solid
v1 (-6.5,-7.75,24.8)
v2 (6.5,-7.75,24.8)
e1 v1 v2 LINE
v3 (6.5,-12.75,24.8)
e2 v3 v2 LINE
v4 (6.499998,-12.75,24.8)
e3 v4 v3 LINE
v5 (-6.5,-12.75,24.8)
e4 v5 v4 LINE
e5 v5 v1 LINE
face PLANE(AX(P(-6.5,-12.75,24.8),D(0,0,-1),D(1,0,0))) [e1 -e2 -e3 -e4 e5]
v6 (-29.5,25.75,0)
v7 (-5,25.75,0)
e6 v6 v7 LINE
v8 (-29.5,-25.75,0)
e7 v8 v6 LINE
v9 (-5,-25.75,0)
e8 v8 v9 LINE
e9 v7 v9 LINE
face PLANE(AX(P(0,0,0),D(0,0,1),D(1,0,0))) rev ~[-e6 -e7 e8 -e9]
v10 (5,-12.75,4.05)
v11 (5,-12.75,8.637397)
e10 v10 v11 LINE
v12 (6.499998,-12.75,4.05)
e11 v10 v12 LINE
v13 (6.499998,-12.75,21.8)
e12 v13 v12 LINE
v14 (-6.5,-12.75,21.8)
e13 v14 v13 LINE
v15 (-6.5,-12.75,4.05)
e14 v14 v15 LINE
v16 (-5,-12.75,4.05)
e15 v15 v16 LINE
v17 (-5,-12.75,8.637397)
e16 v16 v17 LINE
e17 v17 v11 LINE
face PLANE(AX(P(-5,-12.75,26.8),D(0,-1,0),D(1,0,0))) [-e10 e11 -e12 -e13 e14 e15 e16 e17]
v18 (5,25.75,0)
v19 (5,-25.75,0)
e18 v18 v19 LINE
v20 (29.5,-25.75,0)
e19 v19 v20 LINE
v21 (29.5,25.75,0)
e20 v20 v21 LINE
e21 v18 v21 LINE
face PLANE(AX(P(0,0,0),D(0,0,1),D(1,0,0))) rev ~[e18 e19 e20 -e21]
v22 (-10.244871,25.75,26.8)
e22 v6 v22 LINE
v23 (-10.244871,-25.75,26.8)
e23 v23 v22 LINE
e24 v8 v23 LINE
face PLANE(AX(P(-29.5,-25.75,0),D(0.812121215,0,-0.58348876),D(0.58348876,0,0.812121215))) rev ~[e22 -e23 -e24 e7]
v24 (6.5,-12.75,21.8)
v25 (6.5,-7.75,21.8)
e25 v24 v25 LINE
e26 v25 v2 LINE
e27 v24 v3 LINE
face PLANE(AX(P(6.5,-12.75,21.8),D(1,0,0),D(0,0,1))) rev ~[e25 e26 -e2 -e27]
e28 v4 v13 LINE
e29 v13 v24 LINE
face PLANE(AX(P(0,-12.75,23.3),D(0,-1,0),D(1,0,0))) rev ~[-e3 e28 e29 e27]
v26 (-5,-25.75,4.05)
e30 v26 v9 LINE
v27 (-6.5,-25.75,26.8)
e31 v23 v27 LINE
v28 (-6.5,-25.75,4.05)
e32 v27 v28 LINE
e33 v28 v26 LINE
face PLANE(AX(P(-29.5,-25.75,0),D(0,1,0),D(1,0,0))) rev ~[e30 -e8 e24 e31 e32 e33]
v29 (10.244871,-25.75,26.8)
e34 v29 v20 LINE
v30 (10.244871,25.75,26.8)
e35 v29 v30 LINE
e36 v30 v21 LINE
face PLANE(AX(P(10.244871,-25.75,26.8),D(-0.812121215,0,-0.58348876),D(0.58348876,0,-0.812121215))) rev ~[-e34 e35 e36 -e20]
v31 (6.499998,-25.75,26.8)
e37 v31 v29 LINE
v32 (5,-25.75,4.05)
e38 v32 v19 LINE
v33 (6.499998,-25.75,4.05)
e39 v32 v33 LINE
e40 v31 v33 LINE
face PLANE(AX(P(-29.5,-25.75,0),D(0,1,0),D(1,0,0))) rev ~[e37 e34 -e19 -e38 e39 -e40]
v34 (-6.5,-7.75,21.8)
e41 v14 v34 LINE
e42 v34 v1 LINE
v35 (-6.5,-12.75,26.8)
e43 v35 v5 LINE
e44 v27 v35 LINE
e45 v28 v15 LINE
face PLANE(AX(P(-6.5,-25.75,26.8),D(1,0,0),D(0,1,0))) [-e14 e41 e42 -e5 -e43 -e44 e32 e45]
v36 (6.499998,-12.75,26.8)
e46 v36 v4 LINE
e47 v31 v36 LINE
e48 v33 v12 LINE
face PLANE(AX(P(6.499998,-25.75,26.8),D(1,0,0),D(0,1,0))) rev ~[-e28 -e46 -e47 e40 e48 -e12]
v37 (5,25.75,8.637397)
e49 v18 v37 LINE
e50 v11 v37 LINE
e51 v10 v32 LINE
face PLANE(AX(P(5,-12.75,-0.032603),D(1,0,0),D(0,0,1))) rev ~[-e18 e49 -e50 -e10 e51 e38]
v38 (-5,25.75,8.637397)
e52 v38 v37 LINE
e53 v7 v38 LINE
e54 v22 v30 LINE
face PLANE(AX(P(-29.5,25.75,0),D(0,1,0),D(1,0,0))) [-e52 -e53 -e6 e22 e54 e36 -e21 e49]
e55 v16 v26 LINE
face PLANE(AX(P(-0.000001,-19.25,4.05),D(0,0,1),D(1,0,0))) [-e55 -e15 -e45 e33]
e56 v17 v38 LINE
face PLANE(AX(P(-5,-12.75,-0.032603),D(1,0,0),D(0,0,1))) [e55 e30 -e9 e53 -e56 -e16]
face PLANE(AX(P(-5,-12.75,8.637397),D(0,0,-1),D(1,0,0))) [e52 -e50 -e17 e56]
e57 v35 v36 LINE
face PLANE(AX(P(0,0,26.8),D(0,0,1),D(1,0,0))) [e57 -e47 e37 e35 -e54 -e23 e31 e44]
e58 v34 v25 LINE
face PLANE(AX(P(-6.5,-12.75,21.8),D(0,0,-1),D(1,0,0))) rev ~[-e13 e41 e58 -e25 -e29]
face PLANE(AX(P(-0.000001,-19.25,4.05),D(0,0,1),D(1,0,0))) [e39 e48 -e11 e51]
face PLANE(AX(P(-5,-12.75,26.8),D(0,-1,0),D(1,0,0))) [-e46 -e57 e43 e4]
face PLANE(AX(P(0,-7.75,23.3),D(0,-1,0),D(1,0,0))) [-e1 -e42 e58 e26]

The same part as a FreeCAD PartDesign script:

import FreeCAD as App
import Part
import Sketcher

V = App.Vector
Q = App.Units.Quantity

doc = App.newDocument("Part")
params = doc.addObject("Spreadsheet::Sheet", "Params")
for row, (alias, value) in enumerate([
    ("sketch1_width", "59 mm"),
    ("sketch1_height", "51.5 mm"),
    ("pad1_length", "26.8 mm"),
    ("sketch2_width", "10 mm"),
    ("sketch2_height", "13 mm"),
    ("pocket1_length", "26.8 mm"),
    ("sketch3_height", "13 mm"),
    ("pocket2_length", "22.75 mm"),
    ("sketch4_length", "33 mm"),
    ("sketch4_height", "26.8 mm"),
    ("pocket3_length", "51.5 mm"),
    ("sketch5_length", "33 mm"),
    ("sketch5_height", "26.8 mm"),
    ("pocket4_length", "51.5 mm"),
    ("sketch6_width", "10 mm"),
    ("sketch6_height", "8.67 mm"),
    ("pocket5_length", "38.5 mm"),
    ("sketch7_width", "13 mm"),
    ("sketch7_height", "3 mm"),
    ("pocket6_length", "5 mm"),
], start=1):
    params.set(f"A{row}", alias)
    params.set(f"B{row}", "=" + value)
    params.setAlias(f"B{row}", alias)

body = doc.addObject("PartDesign::Body", "Body")

# Sketch on XY plane
sketch1 = doc.addObject("Sketcher::SketchObject", "Sketch")
body.addObject(sketch1)
sketch1.AttachmentSupport = (doc.XY_Plane, [""])
sketch1.MapMode = "FlatFace"
sketch1.addGeometry([
    Part.LineSegment(V(-29.5, 25.75, 0), V(-29.5, -25.75, 0)),
    Part.LineSegment(V(-29.5, -25.75, 0), V(29.5, -25.75, 0)),
    Part.LineSegment(V(29.5, -25.75, 0), V(29.5, 25.75, 0)),
    Part.LineSegment(V(29.5, 25.75, 0), V(-29.5, 25.75, 0)),
], False)
sketch1.addConstraint([
    Sketcher.Constraint("Coincident", 0, 2, 1, 1),
    Sketcher.Constraint("Coincident", 1, 2, 2, 1),
    Sketcher.Constraint("Coincident", 2, 2, 3, 1),
    Sketcher.Constraint("Coincident", 3, 2, 0, 1),
    Sketcher.Constraint("Vertical", 0),
    Sketcher.Constraint("Horizontal", 1),
    Sketcher.Constraint("Vertical", 2),
    Sketcher.Constraint("Horizontal", 3),
    Sketcher.Constraint("Symmetric", 0, 2, 2, 2, -1, 1),
    Sketcher.Constraint("DistanceX", 1, 1, 1, 2, Q("59 mm")),
    Sketcher.Constraint("DistanceY", 0, 2, 0, 1, Q("51.5 mm")),
])
sketch1.setExpression("Constraints[9]", "Params.sketch1_width")
sketch1.setExpression("Constraints[10]", "Params.sketch1_height")
pad1 = doc.addObject("PartDesign::Pad", "Pad")
body.addObject(pad1)
pad1.Profile = sketch1
pad1.setExpression("Length", "Params.pad1_length")

# Sketch on XY plane
sketch2 = doc.addObject("Sketcher::SketchObject", "Sketch001")
body.addObject(sketch2)
sketch2.AttachmentSupport = (doc.XY_Plane, [""])
sketch2.MapMode = "FlatFace"
sketch2.AttachmentOffset = App.Placement(V(0, 0, 26.8), App.Rotation())
sketch2.addGeometry([
    Part.LineSegment(V(-5, -12.75, 0), V(-5, -25.75, 0)),
    Part.LineSegment(V(-5, -25.75, 0), V(5, -25.75, 0)),
    Part.LineSegment(V(5, -25.75, 0), V(5, -12.75, 0)),
    Part.LineSegment(V(5, -12.75, 0), V(-5, -12.75, 0)),
], False)
sketch2.addConstraint([
    Sketcher.Constraint("Coincident", 0, 2, 1, 1),
    Sketcher.Constraint("Coincident", 1, 2, 2, 1),
    Sketcher.Constraint("Coincident", 2, 2, 3, 1),
    Sketcher.Constraint("Coincident", 3, 2, 0, 1),
    Sketcher.Constraint("Vertical", 0),
    Sketcher.Constraint("Horizontal", 1),
    Sketcher.Constraint("Vertical", 2),
    Sketcher.Constraint("Horizontal", 3),
    Sketcher.Constraint("DistanceX", 1, 1, 1, 2, Q("10 mm")),
    Sketcher.Constraint("DistanceY", 0, 2, 0, 1, Q("13 mm")),
    Sketcher.Constraint("DistanceX", 0, 2, -1, 1, Q("5 mm")),
    Sketcher.Constraint("DistanceY", 0, 2, -1, 1, Q("25.75 mm")),
])
sketch2.setExpression("Constraints[8]", "Params.sketch2_width")
sketch2.setExpression("Constraints[9]", "Params.sketch2_height")
pocket1 = doc.addObject("PartDesign::Pocket", "Pocket")
body.addObject(pocket1)
pocket1.Profile = sketch2
pocket1.setExpression("Length", "Params.pocket1_length")

# Sketch on XY plane
sketch3 = doc.addObject("Sketcher::SketchObject", "Sketch002")
body.addObject(sketch3)
sketch3.AttachmentSupport = (doc.XY_Plane, [""])
sketch3.MapMode = "FlatFace"
sketch3.AttachmentOffset = App.Placement(V(0, 0, 26.8), App.Rotation())
sketch3.addGeometry([
    Part.LineSegment(V(-6.5, -12.75, 0), V(-6.5, -25.75, 0)),
    Part.LineSegment(V(-6.5, -25.75, 0), V(6.499998, -25.75, 0)),
    Part.LineSegment(V(6.499998, -25.75, 0), V(6.499998, -12.75, 0)),
    Part.LineSegment(V(6.499998, -12.75, 0), V(-6.5, -12.75, 0)),
], False)
sketch3.addConstraint([
    Sketcher.Constraint("Coincident", 0, 2, 1, 1),
    Sketcher.Constraint("Coincident", 1, 2, 2, 1),
    Sketcher.Constraint("Coincident", 2, 2, 3, 1),
    Sketcher.Constraint("Coincident", 3, 2, 0, 1),
    Sketcher.Constraint("Vertical", 0),
    Sketcher.Constraint("Horizontal", 1),
    Sketcher.Constraint("Vertical", 2),
    Sketcher.Constraint("Horizontal", 3),
    Sketcher.Constraint("DistanceY", 0, 2, 0, 1, Q("13 mm")),
    Sketcher.Constraint("DistanceX", 0, 2, -1, 1, Q("6.5 mm")),
    Sketcher.Constraint("DistanceY", 0, 2, -1, 1, Q("25.75 mm")),
    Sketcher.Constraint("DistanceX", 1, 1, 1, 2, Q("12.999998 mm")),
])
sketch3.setExpression("Constraints[8]", "Params.sketch3_height")
pocket2 = doc.addObject("PartDesign::Pocket", "Pocket001")
body.addObject(pocket2)
pocket2.Profile = sketch3
pocket2.setExpression("Length", "Params.pocket2_length")

# Sketch on XZ plane
sketch4 = doc.addObject("Sketcher::SketchObject", "Sketch003")
body.addObject(sketch4)
sketch4.AttachmentSupport = (doc.XZ_Plane, [""])
sketch4.MapMode = "FlatFace"
sketch4.AttachmentOffset = App.Placement(V(0, 0, 25.75), App.Rotation())
sketch4.addGeometry([
    Part.LineSegment(V(-29.5, 26.8, 0), V(-29.5, 0, 0)),
    Part.LineSegment(V(-29.5, 0, 0), V(-10.244871, 26.8, 0)),
    Part.LineSegment(V(-10.244871, 26.8, 0), V(-29.5, 26.8, 0)),
], False)
sketch4.addConstraint([
    Sketcher.Constraint("Coincident", 0, 2, 1, 1),
    Sketcher.Constraint("Coincident", 1, 2, 2, 1),
    Sketcher.Constraint("Coincident", 2, 2, 0, 1),
    Sketcher.Constraint("Vertical", 0),
    Sketcher.Constraint("Horizontal", 2),
    Sketcher.Constraint("PointOnObject", 0, 2, -1),
    Sketcher.Constraint("Distance", 1, Q("33 mm")),
    Sketcher.Constraint("DistanceY", 0, 2, 0, 1, Q("26.8 mm")),
    Sketcher.Constraint("DistanceX", 0, 2, -1, 1, Q("29.5 mm")),
])
sketch4.setExpression("Constraints[6]", "Params.sketch4_length")
sketch4.setExpression("Constraints[7]", "Params.sketch4_height")
pocket3 = doc.addObject("PartDesign::Pocket", "Pocket002")
body.addObject(pocket3)
pocket3.Profile = sketch4
pocket3.setExpression("Length", "Params.pocket3_length")

# Sketch on XZ plane
sketch5 = doc.addObject("Sketcher::SketchObject", "Sketch004")
body.addObject(sketch5)
sketch5.AttachmentSupport = (doc.XZ_Plane, [""])
sketch5.MapMode = "FlatFace"
sketch5.AttachmentOffset = App.Placement(V(0, 0, 25.75), App.Rotation())
sketch5.addGeometry([
    Part.LineSegment(V(10.244871, 26.8, 0), V(29.5, 0, 0)),
    Part.LineSegment(V(29.5, 0, 0), V(29.5, 26.8, 0)),
    Part.LineSegment(V(29.5, 26.8, 0), V(10.244871, 26.8, 0)),
], False)
sketch5.addConstraint([
    Sketcher.Constraint("Coincident", 0, 2, 1, 1),
    Sketcher.Constraint("Coincident", 1, 2, 2, 1),
    Sketcher.Constraint("Coincident", 2, 2, 0, 1),
    Sketcher.Constraint("Vertical", 1),
    Sketcher.Constraint("Horizontal", 2),
    Sketcher.Constraint("PointOnObject", 0, 2, -1),
    Sketcher.Constraint("Distance", 0, Q("33 mm")),
    Sketcher.Constraint("DistanceY", 1, 1, 1, 2, Q("26.8 mm")),
    Sketcher.Constraint("DistanceX", -1, 1, 0, 2, Q("29.5 mm")),
])
sketch5.setExpression("Constraints[6]", "Params.sketch5_length")
sketch5.setExpression("Constraints[7]", "Params.sketch5_height")
pocket4 = doc.addObject("PartDesign::Pocket", "Pocket003")
body.addObject(pocket4)
pocket4.Profile = sketch5
pocket4.setExpression("Length", "Params.pocket4_length")

# Sketch on XZ plane
sketch6 = doc.addObject("Sketcher::SketchObject", "Sketch005")
body.addObject(sketch6)
sketch6.AttachmentSupport = (doc.XZ_Plane, [""])
sketch6.MapMode = "FlatFace"
sketch6.AttachmentOffset = App.Placement(V(0, 0, 12.75), App.Rotation())
sketch6.addGeometry([
    Part.LineSegment(V(-5, 8.637397, 0), V(-5, -0.032603, 0)),
    Part.LineSegment(V(-5, -0.032603, 0), V(5, -0.032603, 0)),
    Part.LineSegment(V(5, -0.032603, 0), V(5, 8.637397, 0)),
    Part.LineSegment(V(5, 8.637397, 0), V(-5, 8.637397, 0)),
], False)
sketch6.addConstraint([
    Sketcher.Constraint("Coincident", 0, 2, 1, 1),
    Sketcher.Constraint("Coincident", 1, 2, 2, 1),
    Sketcher.Constraint("Coincident", 2, 2, 3, 1),
    Sketcher.Constraint("Coincident", 3, 2, 0, 1),
    Sketcher.Constraint("Vertical", 0),
    Sketcher.Constraint("Horizontal", 1),
    Sketcher.Constraint("Vertical", 2),
    Sketcher.Constraint("Horizontal", 3),
    Sketcher.Constraint("DistanceX", 1, 1, 1, 2, Q("10 mm")),
    Sketcher.Constraint("DistanceX", 0, 2, -1, 1, Q("5 mm")),
    Sketcher.Constraint("DistanceY", 0, 2, 0, 1, Q("8.67 mm")),
    Sketcher.Constraint("DistanceY", 0, 2, -1, 1, Q("0.032603 mm")),
])
sketch6.setExpression("Constraints[8]", "Params.sketch6_width")
sketch6.setExpression("Constraints[10]", "Params.sketch6_height")
pocket5 = doc.addObject("PartDesign::Pocket", "Pocket004")
body.addObject(pocket5)
pocket5.Profile = sketch6
pocket5.setExpression("Length", "Params.pocket5_length")

# Sketch on XZ plane
sketch7 = doc.addObject("Sketcher::SketchObject", "Sketch006")
body.addObject(sketch7)
sketch7.AttachmentSupport = (doc.XZ_Plane, [""])
sketch7.MapMode = "FlatFace"
sketch7.AttachmentOffset = App.Placement(V(0, 0, 12.75), App.Rotation())
sketch7.addGeometry([
    Part.LineSegment(V(-6.5, 24.8, 0), V(-6.5, 21.8, 0)),
    Part.LineSegment(V(-6.5, 21.8, 0), V(6.5, 21.8, 0)),
    Part.LineSegment(V(6.5, 21.8, 0), V(6.5, 24.8, 0)),
    Part.LineSegment(V(6.5, 24.8, 0), V(-6.5, 24.8, 0)),
], False)
sketch7.addConstraint([
    Sketcher.Constraint("Coincident", 0, 2, 1, 1),
    Sketcher.Constraint("Coincident", 1, 2, 2, 1),
    Sketcher.Constraint("Coincident", 2, 2, 3, 1),
    Sketcher.Constraint("Coincident", 3, 2, 0, 1),
    Sketcher.Constraint("Vertical", 0),
    Sketcher.Constraint("Horizontal", 1),
    Sketcher.Constraint("Vertical", 2),
    Sketcher.Constraint("Horizontal", 3),
    Sketcher.Constraint("DistanceX", 1, 1, 1, 2, Q("13 mm")),
    Sketcher.Constraint("DistanceY", 0, 2, 0, 1, Q("3 mm")),
    Sketcher.Constraint("DistanceX", 0, 2, -1, 1, Q("6.5 mm")),
    Sketcher.Constraint("DistanceY", -1, 1, 0, 2, Q("21.8 mm")),
])
sketch7.setExpression("Constraints[8]", "Params.sketch7_width")
sketch7.setExpression("Constraints[9]", "Params.sketch7_height")
pocket6 = doc.addObject("PartDesign::Pocket", "Pocket005")
body.addObject(pocket6)
pocket6.Profile = sketch7
pocket6.setExpression("Length", "Params.pocket6_length")

doc.recompute()
